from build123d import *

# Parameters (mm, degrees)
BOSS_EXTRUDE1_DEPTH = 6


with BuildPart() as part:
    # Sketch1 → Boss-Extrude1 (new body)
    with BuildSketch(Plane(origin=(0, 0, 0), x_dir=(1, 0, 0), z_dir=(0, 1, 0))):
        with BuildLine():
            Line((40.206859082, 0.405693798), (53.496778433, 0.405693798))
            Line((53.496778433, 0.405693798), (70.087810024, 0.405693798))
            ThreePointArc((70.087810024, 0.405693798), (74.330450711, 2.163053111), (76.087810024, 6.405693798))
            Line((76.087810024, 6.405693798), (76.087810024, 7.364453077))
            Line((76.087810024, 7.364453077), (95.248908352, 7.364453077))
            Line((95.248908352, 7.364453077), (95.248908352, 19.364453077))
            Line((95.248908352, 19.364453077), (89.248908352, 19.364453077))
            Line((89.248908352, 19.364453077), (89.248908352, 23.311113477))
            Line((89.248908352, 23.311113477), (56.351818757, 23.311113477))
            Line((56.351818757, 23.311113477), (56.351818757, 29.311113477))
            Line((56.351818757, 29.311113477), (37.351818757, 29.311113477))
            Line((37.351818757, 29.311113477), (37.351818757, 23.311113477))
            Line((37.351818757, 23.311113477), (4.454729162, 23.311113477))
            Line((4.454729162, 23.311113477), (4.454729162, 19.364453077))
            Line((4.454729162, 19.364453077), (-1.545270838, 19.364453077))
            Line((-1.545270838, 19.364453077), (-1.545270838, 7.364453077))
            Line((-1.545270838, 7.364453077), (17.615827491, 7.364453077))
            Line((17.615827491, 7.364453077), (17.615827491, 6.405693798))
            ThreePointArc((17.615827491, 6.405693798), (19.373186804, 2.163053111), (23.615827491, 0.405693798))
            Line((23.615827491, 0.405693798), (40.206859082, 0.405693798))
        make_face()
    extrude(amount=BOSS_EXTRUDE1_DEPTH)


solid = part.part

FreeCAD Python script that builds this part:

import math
import FreeCAD as App
import Part
import Sketcher

V = App.Vector
Q = App.Units.Quantity

doc = App.newDocument("Part")
body = doc.addObject("PartDesign::Body", "Body")

# Sketch on XZ plane
sketch1 = body.newObject("Sketcher::SketchObject", "Sketch")
sketch1.AttachmentSupport = (doc.getObject("XZ_Plane"), [""])
sketch1.MapMode = "FlatFace"
sketch1.addGeometry([
    Part.ArcOfCircle(Part.Circle(V(70.1, -6.4, 0), V(0, 0, 1), 6), math.radians(0), math.radians(90)),  # 0
    Part.LineSegment(V(76.1, -6.4, 0), V(76.1, -7.4, 0)),  # 1
    Part.LineSegment(V(76.1, -7.4, 0), V(95.2, -7.4, 0)),  # 2
    Part.LineSegment(V(95.2, -7.4, 0), V(95.2, -19.4, 0)),  # 3
    Part.LineSegment(V(95.2, -19.4, 0), V(89.2, -19.4, 0)),  # 4
    Part.LineSegment(V(89.2, -19.4, 0), V(89.2, -23.3, 0)),  # 5
    Part.LineSegment(V(89.2, -23.3, 0), V(56.4, -23.3, 0)),  # 6
    Part.LineSegment(V(56.4, -23.3, 0), V(56.4, -29.3, 0)),  # 7
    Part.LineSegment(V(56.4, -29.3, 0), V(37.4, -29.3, 0)),  # 8
    Part.LineSegment(V(37.4, -29.3, 0), V(37.4, -23.3, 0)),  # 9
    Part.LineSegment(V(37.4, -23.3, 0), V(4.5, -23.3, 0)),  # 10
    Part.LineSegment(V(4.5, -23.3, 0), V(4.5, -19.4, 0)),  # 11
    Part.LineSegment(V(4.5, -19.4, 0), V(-1.5, -19.4, 0)),  # 12
    Part.LineSegment(V(-1.5, -19.4, 0), V(-1.5, -7.4, 0)),  # 13
    Part.LineSegment(V(-1.5, -7.4, 0), V(17.6, -7.4, 0)),  # 14
    Part.LineSegment(V(17.6, -7.4, 0), V(17.6, -6.4, 0)),  # 15
    Part.ArcOfCircle(Part.Circle(V(23.6, -6.4, 0), V(0, 0, 1), 6), math.radians(90), math.radians(180)),  # 16
    Part.LineSegment(V(23.6, -0.4, 0), V(70.1, -0.4, 0)),  # 17
], False)
sketch1.addConstraint([
    Sketcher.Constraint("Tangent", 0, 1, 1, 1),
    Sketcher.Constraint("Coincident", 1, 2, 2, 1),
    Sketcher.Constraint("Coincident", 2, 2, 3, 1),
    Sketcher.Constraint("Coincident", 3, 2, 4, 1),
    Sketcher.Constraint("Coincident", 4, 2, 5, 1),
    Sketcher.Constraint("Coincident", 5, 2, 6, 1),
    Sketcher.Constraint("Coincident", 6, 2, 7, 1),
    Sketcher.Constraint("Coincident", 7, 2, 8, 1),
    Sketcher.Constraint("Coincident", 8, 2, 9, 1),
    Sketcher.Constraint("Coincident", 9, 2, 10, 1),
    Sketcher.Constraint("Coincident", 10, 2, 11, 1),
    Sketcher.Constraint("Coincident", 11, 2, 12, 1),
    Sketcher.Constraint("Coincident", 12, 2, 13, 1),
    Sketcher.Constraint("Coincident", 13, 2, 14, 1),
    Sketcher.Constraint("Coincident", 14, 2, 15, 1),
    Sketcher.Constraint("Tangent", 15, 2, 16, 2),
    Sketcher.Constraint("Tangent", 16, 1, 17, 1),
    Sketcher.Constraint("Tangent", 17, 2, 0, 2),
    Sketcher.Constraint("Vertical", 1),
    Sketcher.Constraint("Horizontal", 2),
    Sketcher.Constraint("Vertical", 3),
    Sketcher.Constraint("Horizontal", 4),
    Sketcher.Constraint("Vertical", 5),
    Sketcher.Constraint("Horizontal", 6),
    Sketcher.Constraint("Vertical", 7),
    Sketcher.Constraint("Horizontal", 8),
    Sketcher.Constraint("Vertical", 9),
    Sketcher.Constraint("Horizontal", 10),
    Sketcher.Constraint("Vertical", 11),
    Sketcher.Constraint("Horizontal", 12),
    Sketcher.Constraint("Vertical", 13),
    Sketcher.Constraint("Horizontal", 14),
    Sketcher.Constraint("Vertical", 15),
    Sketcher.Constraint("Horizontal", 17),
    Sketcher.Constraint("Equal", 0, 16),
    Sketcher.Constraint("Horizontal", 6, 2, 9, 2),
    Sketcher.Constraint("Horizontal", 4, 2, 11, 2),
    Sketcher.Constraint("Horizontal", 2, 2, 13, 2),
    Sketcher.Constraint("Equal", 6, 10),
    Sketcher.Constraint("Equal", 4, 12),
    Sketcher.Constraint("Equal", 2, 14),
    Sketcher.Constraint("Equal", 12, 7),
    Sketcher.Constraint("Radius", 0, Q("6 mm")),
    Sketcher.Constraint("DistanceX", 4, 2, 4, 1, Q("6 mm")),
    Sketcher.Constraint("DistanceX", 8, 2, 8, 1, Q("19 mm")),
    Sketcher.Constraint("DistanceY", 3, 2, 3, 1, Q("12 mm")),
    Sketcher.Constraint("DistanceX", 2, 1, 2, 2, Q("19.161098 mm")),
    Sketcher.Constraint("DistanceX", 6, 2, 6, 1, Q("32.89709 mm")),
    Sketcher.Constraint("DistanceY", 1, 2, 1, 1, Q("0.958759 mm")),
    Sketcher.Constraint("DistanceY", 5, 2, 5, 1, Q("3.94666 mm")),
    Sketcher.Constraint("DistanceX", -1, 1, 0, 3, Q("70.08781 mm")),
    Sketcher.Constraint("DistanceY", 0, 3, -1, 1, Q("6.405694 mm")),
])
pad1 = body.newObject("PartDesign::Pad", "Pad")
pad1.Profile = sketch1
pad1.Length = 6
pad1.Reversed = True

doc.recompute()
